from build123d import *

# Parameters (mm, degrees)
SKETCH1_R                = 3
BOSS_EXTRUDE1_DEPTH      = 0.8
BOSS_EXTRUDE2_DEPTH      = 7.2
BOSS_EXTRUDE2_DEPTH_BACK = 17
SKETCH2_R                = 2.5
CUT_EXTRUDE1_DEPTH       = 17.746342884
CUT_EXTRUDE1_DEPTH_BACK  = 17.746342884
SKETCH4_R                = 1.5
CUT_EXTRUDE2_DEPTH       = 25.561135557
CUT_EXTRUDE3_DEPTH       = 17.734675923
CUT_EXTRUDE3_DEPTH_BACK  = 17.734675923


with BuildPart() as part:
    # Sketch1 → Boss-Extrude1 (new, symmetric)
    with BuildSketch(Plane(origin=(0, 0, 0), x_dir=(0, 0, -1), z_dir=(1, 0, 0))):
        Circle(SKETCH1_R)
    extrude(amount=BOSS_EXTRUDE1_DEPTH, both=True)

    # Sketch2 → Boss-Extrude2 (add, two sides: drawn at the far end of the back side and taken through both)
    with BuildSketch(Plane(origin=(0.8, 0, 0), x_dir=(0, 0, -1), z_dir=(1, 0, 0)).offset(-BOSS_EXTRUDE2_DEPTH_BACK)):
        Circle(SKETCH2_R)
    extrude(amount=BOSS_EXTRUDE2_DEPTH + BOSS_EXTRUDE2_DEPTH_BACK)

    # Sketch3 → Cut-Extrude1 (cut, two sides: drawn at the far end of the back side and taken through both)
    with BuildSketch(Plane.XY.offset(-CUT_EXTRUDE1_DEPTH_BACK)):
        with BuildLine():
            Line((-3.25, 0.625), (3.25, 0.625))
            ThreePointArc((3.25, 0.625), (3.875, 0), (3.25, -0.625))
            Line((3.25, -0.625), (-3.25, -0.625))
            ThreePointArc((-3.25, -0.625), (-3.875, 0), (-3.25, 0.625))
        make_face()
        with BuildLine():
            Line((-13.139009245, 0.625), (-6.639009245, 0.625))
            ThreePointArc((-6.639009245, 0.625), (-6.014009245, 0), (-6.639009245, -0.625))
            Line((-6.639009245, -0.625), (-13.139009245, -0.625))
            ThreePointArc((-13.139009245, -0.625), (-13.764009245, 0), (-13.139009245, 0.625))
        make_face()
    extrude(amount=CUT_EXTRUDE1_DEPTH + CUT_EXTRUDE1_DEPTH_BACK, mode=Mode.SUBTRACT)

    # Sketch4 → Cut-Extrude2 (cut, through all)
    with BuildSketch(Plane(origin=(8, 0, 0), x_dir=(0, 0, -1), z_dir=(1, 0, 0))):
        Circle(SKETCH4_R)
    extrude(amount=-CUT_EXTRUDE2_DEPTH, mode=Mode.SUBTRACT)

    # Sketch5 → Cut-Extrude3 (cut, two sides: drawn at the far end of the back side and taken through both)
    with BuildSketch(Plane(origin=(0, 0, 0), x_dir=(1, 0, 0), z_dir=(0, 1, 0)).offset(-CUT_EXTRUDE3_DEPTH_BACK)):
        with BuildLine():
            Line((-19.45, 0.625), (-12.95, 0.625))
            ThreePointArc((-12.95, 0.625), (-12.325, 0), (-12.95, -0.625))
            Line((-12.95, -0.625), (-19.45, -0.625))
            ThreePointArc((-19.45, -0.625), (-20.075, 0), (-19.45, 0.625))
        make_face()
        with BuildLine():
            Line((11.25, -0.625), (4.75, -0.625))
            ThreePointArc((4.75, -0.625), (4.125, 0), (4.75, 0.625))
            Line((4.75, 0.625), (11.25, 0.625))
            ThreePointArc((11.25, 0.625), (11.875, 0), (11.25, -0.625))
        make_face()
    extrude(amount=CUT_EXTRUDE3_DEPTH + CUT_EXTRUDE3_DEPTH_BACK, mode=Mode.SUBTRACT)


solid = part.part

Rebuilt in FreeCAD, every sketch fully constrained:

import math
import FreeCAD as App
import Part
import Sketcher

V = App.Vector
Q = App.Units.Quantity

doc = App.newDocument("Part")
body = doc.addObject("PartDesign::Body", "Body")

# Sketch on YZ plane
sketch1 = doc.addObject("Sketcher::SketchObject", "Sketch")
body.addObject(sketch1)
sketch1.AttachmentSupport = (doc.YZ_Plane, [""])
sketch1.MapMode = "FlatFace"
sketch1.addGeometry(Part.Circle(V(0, 0, 0), V(0, 0, 1), 3), False)
sketch1.addConstraint([
    Sketcher.Constraint("Coincident", 0, 3, -1, 1),
    Sketcher.Constraint("Diameter", 0, Q("6 mm")),
])
pad1 = doc.addObject("PartDesign::Pad", "Pad")
body.addObject(pad1)
pad1.Profile = sketch1
pad1.Length = 1.6
pad1.Midplane = True

# Sketch on YZ plane
sketch2 = doc.addObject("Sketcher::SketchObject", "Sketch001")
body.addObject(sketch2)
sketch2.AttachmentSupport = (doc.YZ_Plane, [""])
sketch2.MapMode = "FlatFace"
sketch2.AttachmentOffset = App.Placement(V(0, 0, 0.8), App.Rotation())
sketch2.addGeometry(Part.Circle(V(0, 0, 0), V(0, 0, 1), 2.5), False)
sketch2.addConstraint([
    Sketcher.Constraint("Coincident", 0, 3, -1, 1),
    Sketcher.Constraint("Diameter", 0, Q("5 mm")),
])
pad2 = doc.addObject("PartDesign::Pad", "Pad001")
body.addObject(pad2)
pad2.Profile = sketch2
pad2.Type = "TwoLengths"
pad2.Length = 7.2
pad2.Length2 = 17

# Sketch on XY plane
sketch3 = doc.addObject("Sketcher::SketchObject", "Sketch002")
body.addObject(sketch3)
sketch3.AttachmentSupport = (doc.XY_Plane, [""])
sketch3.MapMode = "FlatFace"
sketch3.addGeometry([
    Part.LineSegment(V(3.2, 0.6, 0), V(-3.2, 0.6, 0)),  # 0
    Part.ArcOfCircle(Part.Circle(V(-3.2, 0, 0), V(0, 0, 1), 0.6), math.radians(90), math.radians(270)),  # 1
    Part.LineSegment(V(-3.2, -0.6, 0), V(3.2, -0.6, 0)),  # 2
    Part.ArcOfCircle(Part.Circle(V(3.2, 0, 0), V(0, 0, 1), 0.6), math.radians(-90), math.radians(90)),  # 3
    Part.LineSegment(V(-6.6, 0.6, 0), V(-13.1, 0.6, 0)),  # 4
    Part.ArcOfCircle(Part.Circle(V(-13.1, 0, 0), V(0, 0, 1), 0.6), math.radians(90), math.radians(270)),  # 5
    Part.LineSegment(V(-13.1, -0.6, 0), V(-6.6, -0.6, 0)),  # 6
    Part.ArcOfCircle(Part.Circle(V(-6.6, 0, 0), V(0, 0, 1), 0.6), math.radians(-90), math.radians(90)),  # 7
], False)
sketch3.addConstraint([
    Sketcher.Constraint("Tangent", 0, 2, 1, 1),
    Sketcher.Constraint("Tangent", 1, 2, 2, 1),
    Sketcher.Constraint("Tangent", 2, 2, 3, 1),
    Sketcher.Constraint("Tangent", 3, 2, 0, 1),
    Sketcher.Constraint("Tangent", 4, 2, 5, 1),
    Sketcher.Constraint("Tangent", 5, 2, 6, 1),
    Sketcher.Constraint("Tangent", 6, 2, 7, 1),
    Sketcher.Constraint("Tangent", 7, 2, 4, 1),
    Sketcher.Constraint("Horizontal", 0),
    Sketcher.Constraint("Horizontal", 2),
    Sketcher.Constraint("Horizontal", 4),
    Sketcher.Constraint("Horizontal", 6),
    Sketcher.Constraint("Equal", 3, 5),
    Sketcher.Constraint("Symmetric", 1, 3, 3, 3, -1, 1),
    Sketcher.Constraint("PointOnObject", 5, 3, -1),
    Sketcher.Constraint("Equal", 2, 4),
    Sketcher.Constraint("DistanceX", 0, 2, 0, 1, Q("6.5 mm")),
    Sketcher.Constraint("Radius", 1, Q("0.625 mm")),
    Sketcher.Constraint("DistanceX", 5, 3, -1, 1, Q("13.139009 mm")),
])
pocket1 = doc.addObject("PartDesign::Pocket", "Pocket")
body.addObject(pocket1)
pocket1.Profile = sketch3
pocket1.Type = "ThroughAll"
pocket1.Midplane = True

# Sketch on YZ plane
sketch4 = doc.addObject("Sketcher::SketchObject", "Sketch003")
body.addObject(sketch4)
sketch4.AttachmentSupport = (doc.YZ_Plane, [""])
sketch4.MapMode = "FlatFace"
sketch4.AttachmentOffset = App.Placement(V(0, 0, 8), App.Rotation())
sketch4.addGeometry(Part.Circle(V(0, 0, 0), V(0, 0, 1), 1.5), False)
sketch4.addConstraint([
    Sketcher.Constraint("Coincident", 0, 3, -1, 1),
    Sketcher.Constraint("Diameter", 0, Q("3 mm")),
])
pocket2 = doc.addObject("PartDesign::Pocket", "Pocket001")
body.addObject(pocket2)
pocket2.Profile = sketch4
pocket2.Type = "ThroughAll"

# Sketch on XZ plane
sketch5 = doc.addObject("Sketcher::SketchObject", "Sketch004")
body.addObject(sketch5)
sketch5.AttachmentSupport = (doc.XZ_Plane, [""])
sketch5.MapMode = "FlatFace"
sketch5.addGeometry([
    Part.LineSegment(V(-12.9, -0.6, 0), V(-19.4, -0.6, 0)),  # 0
    Part.ArcOfCircle(Part.Circle(V(-19.4, 0, 0), V(0, 0, 1), 0.6), math.radians(90), math.radians(270)),  # 1
    Part.LineSegment(V(-19.4, 0.6, 0), V(-12.9, 0.6, 0)),  # 2
    Part.ArcOfCircle(Part.Circle(V(-12.9, 0, 0), V(0, 0, 1), 0.6), math.radians(-90), math.radians(90)),  # 3
    Part.LineSegment(V(4.8, 0.6, 0), V(11.2, 0.6, 0)),  # 4
    Part.ArcOfCircle(Part.Circle(V(11.2, 0, 0), V(0, 0, 1), 0.6), math.radians(-90), math.radians(90)),  # 5
    Part.LineSegment(V(11.2, -0.6, 0), V(4.8, -0.6, 0)),  # 6
    Part.ArcOfCircle(Part.Circle(V(4.8, 0, 0), V(0, 0, 1), 0.6), math.radians(90), math.radians(270)),  # 7
], False)
sketch5.addConstraint([
    Sketcher.Constraint("Tangent", 0, 2, 1, 2),
    Sketcher.Constraint("Tangent", 1, 1, 2, 1),
    Sketcher.Constraint("Tangent", 2, 2, 3, 2),
    Sketcher.Constraint("Tangent", 3, 1, 0, 1),
    Sketcher.Constraint("Tangent", 4, 2, 5, 2),
    Sketcher.Constraint("Tangent", 5, 1, 6, 1),
    Sketcher.Constraint("Tangent", 6, 2, 7, 2),
    Sketcher.Constraint("Tangent", 7, 1, 4, 1),
    Sketcher.Constraint("Horizontal", 0),
    Sketcher.Constraint("Horizontal", 2),
    Sketcher.Constraint("Horizontal", 4),
    Sketcher.Constraint("Horizontal", 6),
    Sketcher.Constraint("Equal", 3, 5),
    Sketcher.Constraint("PointOnObject", 1, 3, -1),
    Sketcher.Constraint("PointOnObject", 5, 3, -1),
    Sketcher.Constraint("Equal", 2, 4),
    Sketcher.Constraint("DistanceX", 0, 2, 0, 1, Q("6.5 mm")),
    Sketcher.Constraint("Radius", 1, Q("0.625 mm")),
    Sketcher.Constraint("DistanceX", 3, 3, 5, 3, Q("24.2 mm")),
    Sketcher.Constraint("DistanceX", 1, 3, -1, 1, Q("19.45 mm")),
])
pocket3 = doc.addObject("PartDesign::Pocket", "Pocket002")
body.addObject(pocket3)
pocket3.Profile = sketch5
pocket3.Type = "ThroughAll"
pocket3.Midplane = True

doc.recompute()
